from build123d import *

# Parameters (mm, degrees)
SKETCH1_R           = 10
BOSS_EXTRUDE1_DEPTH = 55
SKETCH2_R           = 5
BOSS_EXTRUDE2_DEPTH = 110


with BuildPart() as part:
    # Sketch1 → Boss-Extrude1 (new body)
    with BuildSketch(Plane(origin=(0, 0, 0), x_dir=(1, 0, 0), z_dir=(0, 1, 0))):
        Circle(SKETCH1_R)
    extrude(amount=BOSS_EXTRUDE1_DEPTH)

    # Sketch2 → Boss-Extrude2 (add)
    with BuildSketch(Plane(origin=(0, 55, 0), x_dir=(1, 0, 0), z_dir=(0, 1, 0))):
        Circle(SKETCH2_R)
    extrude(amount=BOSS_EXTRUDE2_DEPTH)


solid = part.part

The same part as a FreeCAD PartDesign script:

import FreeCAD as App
import Part
import Sketcher

doc = App.newDocument("Part")
body = doc.addObject("PartDesign::Body", "Body")

# Sketch on XZ plane
sketch1 = doc.addObject("Sketcher::SketchObject", "Sketch")
body.addObject(sketch1)
sketch1.AttachmentSupport = (doc.XZ_Plane, [""])
sketch1.MapMode = "FlatFace"
sketch1.addGeometry(Part.Circle(App.Vector(0, 0, 0), App.Vector(0, 0, 1), 10), False)
sketch1.addConstraint([
    Sketcher.Constraint("Coincident", 0, 3, -1, 1),
    Sketcher.Constraint("Diameter", 0, 20.0),
])
pad1 = doc.addObject("PartDesign::Pad", "Pad")
body.addObject(pad1)
pad1.Profile = sketch1
pad1.Length = 55
pad1.Reversed = True

# Sketch on XZ plane
sketch2 = doc.addObject("Sketcher::SketchObject", "Sketch001")
body.addObject(sketch2)
sketch2.AttachmentSupport = (doc.XZ_Plane, [""])
sketch2.MapMode = "FlatFace"
sketch2.AttachmentOffset = App.Placement(App.Vector(0, 0, -55), App.Rotation())
sketch2.addGeometry(Part.Circle(App.Vector(0, 0, 0), App.Vector(0, 0, 1), 5), False)
sketch2.addConstraint([
    Sketcher.Constraint("Coincident", 0, 3, -1, 1),
    Sketcher.Constraint("Diameter", 0, 10.0),
])
pad2 = doc.addObject("PartDesign::Pad", "Pad001")
body.addObject(pad2)
pad2.Profile = sketch2
pad2.Length = 110
pad2.Reversed = True

doc.recompute()
